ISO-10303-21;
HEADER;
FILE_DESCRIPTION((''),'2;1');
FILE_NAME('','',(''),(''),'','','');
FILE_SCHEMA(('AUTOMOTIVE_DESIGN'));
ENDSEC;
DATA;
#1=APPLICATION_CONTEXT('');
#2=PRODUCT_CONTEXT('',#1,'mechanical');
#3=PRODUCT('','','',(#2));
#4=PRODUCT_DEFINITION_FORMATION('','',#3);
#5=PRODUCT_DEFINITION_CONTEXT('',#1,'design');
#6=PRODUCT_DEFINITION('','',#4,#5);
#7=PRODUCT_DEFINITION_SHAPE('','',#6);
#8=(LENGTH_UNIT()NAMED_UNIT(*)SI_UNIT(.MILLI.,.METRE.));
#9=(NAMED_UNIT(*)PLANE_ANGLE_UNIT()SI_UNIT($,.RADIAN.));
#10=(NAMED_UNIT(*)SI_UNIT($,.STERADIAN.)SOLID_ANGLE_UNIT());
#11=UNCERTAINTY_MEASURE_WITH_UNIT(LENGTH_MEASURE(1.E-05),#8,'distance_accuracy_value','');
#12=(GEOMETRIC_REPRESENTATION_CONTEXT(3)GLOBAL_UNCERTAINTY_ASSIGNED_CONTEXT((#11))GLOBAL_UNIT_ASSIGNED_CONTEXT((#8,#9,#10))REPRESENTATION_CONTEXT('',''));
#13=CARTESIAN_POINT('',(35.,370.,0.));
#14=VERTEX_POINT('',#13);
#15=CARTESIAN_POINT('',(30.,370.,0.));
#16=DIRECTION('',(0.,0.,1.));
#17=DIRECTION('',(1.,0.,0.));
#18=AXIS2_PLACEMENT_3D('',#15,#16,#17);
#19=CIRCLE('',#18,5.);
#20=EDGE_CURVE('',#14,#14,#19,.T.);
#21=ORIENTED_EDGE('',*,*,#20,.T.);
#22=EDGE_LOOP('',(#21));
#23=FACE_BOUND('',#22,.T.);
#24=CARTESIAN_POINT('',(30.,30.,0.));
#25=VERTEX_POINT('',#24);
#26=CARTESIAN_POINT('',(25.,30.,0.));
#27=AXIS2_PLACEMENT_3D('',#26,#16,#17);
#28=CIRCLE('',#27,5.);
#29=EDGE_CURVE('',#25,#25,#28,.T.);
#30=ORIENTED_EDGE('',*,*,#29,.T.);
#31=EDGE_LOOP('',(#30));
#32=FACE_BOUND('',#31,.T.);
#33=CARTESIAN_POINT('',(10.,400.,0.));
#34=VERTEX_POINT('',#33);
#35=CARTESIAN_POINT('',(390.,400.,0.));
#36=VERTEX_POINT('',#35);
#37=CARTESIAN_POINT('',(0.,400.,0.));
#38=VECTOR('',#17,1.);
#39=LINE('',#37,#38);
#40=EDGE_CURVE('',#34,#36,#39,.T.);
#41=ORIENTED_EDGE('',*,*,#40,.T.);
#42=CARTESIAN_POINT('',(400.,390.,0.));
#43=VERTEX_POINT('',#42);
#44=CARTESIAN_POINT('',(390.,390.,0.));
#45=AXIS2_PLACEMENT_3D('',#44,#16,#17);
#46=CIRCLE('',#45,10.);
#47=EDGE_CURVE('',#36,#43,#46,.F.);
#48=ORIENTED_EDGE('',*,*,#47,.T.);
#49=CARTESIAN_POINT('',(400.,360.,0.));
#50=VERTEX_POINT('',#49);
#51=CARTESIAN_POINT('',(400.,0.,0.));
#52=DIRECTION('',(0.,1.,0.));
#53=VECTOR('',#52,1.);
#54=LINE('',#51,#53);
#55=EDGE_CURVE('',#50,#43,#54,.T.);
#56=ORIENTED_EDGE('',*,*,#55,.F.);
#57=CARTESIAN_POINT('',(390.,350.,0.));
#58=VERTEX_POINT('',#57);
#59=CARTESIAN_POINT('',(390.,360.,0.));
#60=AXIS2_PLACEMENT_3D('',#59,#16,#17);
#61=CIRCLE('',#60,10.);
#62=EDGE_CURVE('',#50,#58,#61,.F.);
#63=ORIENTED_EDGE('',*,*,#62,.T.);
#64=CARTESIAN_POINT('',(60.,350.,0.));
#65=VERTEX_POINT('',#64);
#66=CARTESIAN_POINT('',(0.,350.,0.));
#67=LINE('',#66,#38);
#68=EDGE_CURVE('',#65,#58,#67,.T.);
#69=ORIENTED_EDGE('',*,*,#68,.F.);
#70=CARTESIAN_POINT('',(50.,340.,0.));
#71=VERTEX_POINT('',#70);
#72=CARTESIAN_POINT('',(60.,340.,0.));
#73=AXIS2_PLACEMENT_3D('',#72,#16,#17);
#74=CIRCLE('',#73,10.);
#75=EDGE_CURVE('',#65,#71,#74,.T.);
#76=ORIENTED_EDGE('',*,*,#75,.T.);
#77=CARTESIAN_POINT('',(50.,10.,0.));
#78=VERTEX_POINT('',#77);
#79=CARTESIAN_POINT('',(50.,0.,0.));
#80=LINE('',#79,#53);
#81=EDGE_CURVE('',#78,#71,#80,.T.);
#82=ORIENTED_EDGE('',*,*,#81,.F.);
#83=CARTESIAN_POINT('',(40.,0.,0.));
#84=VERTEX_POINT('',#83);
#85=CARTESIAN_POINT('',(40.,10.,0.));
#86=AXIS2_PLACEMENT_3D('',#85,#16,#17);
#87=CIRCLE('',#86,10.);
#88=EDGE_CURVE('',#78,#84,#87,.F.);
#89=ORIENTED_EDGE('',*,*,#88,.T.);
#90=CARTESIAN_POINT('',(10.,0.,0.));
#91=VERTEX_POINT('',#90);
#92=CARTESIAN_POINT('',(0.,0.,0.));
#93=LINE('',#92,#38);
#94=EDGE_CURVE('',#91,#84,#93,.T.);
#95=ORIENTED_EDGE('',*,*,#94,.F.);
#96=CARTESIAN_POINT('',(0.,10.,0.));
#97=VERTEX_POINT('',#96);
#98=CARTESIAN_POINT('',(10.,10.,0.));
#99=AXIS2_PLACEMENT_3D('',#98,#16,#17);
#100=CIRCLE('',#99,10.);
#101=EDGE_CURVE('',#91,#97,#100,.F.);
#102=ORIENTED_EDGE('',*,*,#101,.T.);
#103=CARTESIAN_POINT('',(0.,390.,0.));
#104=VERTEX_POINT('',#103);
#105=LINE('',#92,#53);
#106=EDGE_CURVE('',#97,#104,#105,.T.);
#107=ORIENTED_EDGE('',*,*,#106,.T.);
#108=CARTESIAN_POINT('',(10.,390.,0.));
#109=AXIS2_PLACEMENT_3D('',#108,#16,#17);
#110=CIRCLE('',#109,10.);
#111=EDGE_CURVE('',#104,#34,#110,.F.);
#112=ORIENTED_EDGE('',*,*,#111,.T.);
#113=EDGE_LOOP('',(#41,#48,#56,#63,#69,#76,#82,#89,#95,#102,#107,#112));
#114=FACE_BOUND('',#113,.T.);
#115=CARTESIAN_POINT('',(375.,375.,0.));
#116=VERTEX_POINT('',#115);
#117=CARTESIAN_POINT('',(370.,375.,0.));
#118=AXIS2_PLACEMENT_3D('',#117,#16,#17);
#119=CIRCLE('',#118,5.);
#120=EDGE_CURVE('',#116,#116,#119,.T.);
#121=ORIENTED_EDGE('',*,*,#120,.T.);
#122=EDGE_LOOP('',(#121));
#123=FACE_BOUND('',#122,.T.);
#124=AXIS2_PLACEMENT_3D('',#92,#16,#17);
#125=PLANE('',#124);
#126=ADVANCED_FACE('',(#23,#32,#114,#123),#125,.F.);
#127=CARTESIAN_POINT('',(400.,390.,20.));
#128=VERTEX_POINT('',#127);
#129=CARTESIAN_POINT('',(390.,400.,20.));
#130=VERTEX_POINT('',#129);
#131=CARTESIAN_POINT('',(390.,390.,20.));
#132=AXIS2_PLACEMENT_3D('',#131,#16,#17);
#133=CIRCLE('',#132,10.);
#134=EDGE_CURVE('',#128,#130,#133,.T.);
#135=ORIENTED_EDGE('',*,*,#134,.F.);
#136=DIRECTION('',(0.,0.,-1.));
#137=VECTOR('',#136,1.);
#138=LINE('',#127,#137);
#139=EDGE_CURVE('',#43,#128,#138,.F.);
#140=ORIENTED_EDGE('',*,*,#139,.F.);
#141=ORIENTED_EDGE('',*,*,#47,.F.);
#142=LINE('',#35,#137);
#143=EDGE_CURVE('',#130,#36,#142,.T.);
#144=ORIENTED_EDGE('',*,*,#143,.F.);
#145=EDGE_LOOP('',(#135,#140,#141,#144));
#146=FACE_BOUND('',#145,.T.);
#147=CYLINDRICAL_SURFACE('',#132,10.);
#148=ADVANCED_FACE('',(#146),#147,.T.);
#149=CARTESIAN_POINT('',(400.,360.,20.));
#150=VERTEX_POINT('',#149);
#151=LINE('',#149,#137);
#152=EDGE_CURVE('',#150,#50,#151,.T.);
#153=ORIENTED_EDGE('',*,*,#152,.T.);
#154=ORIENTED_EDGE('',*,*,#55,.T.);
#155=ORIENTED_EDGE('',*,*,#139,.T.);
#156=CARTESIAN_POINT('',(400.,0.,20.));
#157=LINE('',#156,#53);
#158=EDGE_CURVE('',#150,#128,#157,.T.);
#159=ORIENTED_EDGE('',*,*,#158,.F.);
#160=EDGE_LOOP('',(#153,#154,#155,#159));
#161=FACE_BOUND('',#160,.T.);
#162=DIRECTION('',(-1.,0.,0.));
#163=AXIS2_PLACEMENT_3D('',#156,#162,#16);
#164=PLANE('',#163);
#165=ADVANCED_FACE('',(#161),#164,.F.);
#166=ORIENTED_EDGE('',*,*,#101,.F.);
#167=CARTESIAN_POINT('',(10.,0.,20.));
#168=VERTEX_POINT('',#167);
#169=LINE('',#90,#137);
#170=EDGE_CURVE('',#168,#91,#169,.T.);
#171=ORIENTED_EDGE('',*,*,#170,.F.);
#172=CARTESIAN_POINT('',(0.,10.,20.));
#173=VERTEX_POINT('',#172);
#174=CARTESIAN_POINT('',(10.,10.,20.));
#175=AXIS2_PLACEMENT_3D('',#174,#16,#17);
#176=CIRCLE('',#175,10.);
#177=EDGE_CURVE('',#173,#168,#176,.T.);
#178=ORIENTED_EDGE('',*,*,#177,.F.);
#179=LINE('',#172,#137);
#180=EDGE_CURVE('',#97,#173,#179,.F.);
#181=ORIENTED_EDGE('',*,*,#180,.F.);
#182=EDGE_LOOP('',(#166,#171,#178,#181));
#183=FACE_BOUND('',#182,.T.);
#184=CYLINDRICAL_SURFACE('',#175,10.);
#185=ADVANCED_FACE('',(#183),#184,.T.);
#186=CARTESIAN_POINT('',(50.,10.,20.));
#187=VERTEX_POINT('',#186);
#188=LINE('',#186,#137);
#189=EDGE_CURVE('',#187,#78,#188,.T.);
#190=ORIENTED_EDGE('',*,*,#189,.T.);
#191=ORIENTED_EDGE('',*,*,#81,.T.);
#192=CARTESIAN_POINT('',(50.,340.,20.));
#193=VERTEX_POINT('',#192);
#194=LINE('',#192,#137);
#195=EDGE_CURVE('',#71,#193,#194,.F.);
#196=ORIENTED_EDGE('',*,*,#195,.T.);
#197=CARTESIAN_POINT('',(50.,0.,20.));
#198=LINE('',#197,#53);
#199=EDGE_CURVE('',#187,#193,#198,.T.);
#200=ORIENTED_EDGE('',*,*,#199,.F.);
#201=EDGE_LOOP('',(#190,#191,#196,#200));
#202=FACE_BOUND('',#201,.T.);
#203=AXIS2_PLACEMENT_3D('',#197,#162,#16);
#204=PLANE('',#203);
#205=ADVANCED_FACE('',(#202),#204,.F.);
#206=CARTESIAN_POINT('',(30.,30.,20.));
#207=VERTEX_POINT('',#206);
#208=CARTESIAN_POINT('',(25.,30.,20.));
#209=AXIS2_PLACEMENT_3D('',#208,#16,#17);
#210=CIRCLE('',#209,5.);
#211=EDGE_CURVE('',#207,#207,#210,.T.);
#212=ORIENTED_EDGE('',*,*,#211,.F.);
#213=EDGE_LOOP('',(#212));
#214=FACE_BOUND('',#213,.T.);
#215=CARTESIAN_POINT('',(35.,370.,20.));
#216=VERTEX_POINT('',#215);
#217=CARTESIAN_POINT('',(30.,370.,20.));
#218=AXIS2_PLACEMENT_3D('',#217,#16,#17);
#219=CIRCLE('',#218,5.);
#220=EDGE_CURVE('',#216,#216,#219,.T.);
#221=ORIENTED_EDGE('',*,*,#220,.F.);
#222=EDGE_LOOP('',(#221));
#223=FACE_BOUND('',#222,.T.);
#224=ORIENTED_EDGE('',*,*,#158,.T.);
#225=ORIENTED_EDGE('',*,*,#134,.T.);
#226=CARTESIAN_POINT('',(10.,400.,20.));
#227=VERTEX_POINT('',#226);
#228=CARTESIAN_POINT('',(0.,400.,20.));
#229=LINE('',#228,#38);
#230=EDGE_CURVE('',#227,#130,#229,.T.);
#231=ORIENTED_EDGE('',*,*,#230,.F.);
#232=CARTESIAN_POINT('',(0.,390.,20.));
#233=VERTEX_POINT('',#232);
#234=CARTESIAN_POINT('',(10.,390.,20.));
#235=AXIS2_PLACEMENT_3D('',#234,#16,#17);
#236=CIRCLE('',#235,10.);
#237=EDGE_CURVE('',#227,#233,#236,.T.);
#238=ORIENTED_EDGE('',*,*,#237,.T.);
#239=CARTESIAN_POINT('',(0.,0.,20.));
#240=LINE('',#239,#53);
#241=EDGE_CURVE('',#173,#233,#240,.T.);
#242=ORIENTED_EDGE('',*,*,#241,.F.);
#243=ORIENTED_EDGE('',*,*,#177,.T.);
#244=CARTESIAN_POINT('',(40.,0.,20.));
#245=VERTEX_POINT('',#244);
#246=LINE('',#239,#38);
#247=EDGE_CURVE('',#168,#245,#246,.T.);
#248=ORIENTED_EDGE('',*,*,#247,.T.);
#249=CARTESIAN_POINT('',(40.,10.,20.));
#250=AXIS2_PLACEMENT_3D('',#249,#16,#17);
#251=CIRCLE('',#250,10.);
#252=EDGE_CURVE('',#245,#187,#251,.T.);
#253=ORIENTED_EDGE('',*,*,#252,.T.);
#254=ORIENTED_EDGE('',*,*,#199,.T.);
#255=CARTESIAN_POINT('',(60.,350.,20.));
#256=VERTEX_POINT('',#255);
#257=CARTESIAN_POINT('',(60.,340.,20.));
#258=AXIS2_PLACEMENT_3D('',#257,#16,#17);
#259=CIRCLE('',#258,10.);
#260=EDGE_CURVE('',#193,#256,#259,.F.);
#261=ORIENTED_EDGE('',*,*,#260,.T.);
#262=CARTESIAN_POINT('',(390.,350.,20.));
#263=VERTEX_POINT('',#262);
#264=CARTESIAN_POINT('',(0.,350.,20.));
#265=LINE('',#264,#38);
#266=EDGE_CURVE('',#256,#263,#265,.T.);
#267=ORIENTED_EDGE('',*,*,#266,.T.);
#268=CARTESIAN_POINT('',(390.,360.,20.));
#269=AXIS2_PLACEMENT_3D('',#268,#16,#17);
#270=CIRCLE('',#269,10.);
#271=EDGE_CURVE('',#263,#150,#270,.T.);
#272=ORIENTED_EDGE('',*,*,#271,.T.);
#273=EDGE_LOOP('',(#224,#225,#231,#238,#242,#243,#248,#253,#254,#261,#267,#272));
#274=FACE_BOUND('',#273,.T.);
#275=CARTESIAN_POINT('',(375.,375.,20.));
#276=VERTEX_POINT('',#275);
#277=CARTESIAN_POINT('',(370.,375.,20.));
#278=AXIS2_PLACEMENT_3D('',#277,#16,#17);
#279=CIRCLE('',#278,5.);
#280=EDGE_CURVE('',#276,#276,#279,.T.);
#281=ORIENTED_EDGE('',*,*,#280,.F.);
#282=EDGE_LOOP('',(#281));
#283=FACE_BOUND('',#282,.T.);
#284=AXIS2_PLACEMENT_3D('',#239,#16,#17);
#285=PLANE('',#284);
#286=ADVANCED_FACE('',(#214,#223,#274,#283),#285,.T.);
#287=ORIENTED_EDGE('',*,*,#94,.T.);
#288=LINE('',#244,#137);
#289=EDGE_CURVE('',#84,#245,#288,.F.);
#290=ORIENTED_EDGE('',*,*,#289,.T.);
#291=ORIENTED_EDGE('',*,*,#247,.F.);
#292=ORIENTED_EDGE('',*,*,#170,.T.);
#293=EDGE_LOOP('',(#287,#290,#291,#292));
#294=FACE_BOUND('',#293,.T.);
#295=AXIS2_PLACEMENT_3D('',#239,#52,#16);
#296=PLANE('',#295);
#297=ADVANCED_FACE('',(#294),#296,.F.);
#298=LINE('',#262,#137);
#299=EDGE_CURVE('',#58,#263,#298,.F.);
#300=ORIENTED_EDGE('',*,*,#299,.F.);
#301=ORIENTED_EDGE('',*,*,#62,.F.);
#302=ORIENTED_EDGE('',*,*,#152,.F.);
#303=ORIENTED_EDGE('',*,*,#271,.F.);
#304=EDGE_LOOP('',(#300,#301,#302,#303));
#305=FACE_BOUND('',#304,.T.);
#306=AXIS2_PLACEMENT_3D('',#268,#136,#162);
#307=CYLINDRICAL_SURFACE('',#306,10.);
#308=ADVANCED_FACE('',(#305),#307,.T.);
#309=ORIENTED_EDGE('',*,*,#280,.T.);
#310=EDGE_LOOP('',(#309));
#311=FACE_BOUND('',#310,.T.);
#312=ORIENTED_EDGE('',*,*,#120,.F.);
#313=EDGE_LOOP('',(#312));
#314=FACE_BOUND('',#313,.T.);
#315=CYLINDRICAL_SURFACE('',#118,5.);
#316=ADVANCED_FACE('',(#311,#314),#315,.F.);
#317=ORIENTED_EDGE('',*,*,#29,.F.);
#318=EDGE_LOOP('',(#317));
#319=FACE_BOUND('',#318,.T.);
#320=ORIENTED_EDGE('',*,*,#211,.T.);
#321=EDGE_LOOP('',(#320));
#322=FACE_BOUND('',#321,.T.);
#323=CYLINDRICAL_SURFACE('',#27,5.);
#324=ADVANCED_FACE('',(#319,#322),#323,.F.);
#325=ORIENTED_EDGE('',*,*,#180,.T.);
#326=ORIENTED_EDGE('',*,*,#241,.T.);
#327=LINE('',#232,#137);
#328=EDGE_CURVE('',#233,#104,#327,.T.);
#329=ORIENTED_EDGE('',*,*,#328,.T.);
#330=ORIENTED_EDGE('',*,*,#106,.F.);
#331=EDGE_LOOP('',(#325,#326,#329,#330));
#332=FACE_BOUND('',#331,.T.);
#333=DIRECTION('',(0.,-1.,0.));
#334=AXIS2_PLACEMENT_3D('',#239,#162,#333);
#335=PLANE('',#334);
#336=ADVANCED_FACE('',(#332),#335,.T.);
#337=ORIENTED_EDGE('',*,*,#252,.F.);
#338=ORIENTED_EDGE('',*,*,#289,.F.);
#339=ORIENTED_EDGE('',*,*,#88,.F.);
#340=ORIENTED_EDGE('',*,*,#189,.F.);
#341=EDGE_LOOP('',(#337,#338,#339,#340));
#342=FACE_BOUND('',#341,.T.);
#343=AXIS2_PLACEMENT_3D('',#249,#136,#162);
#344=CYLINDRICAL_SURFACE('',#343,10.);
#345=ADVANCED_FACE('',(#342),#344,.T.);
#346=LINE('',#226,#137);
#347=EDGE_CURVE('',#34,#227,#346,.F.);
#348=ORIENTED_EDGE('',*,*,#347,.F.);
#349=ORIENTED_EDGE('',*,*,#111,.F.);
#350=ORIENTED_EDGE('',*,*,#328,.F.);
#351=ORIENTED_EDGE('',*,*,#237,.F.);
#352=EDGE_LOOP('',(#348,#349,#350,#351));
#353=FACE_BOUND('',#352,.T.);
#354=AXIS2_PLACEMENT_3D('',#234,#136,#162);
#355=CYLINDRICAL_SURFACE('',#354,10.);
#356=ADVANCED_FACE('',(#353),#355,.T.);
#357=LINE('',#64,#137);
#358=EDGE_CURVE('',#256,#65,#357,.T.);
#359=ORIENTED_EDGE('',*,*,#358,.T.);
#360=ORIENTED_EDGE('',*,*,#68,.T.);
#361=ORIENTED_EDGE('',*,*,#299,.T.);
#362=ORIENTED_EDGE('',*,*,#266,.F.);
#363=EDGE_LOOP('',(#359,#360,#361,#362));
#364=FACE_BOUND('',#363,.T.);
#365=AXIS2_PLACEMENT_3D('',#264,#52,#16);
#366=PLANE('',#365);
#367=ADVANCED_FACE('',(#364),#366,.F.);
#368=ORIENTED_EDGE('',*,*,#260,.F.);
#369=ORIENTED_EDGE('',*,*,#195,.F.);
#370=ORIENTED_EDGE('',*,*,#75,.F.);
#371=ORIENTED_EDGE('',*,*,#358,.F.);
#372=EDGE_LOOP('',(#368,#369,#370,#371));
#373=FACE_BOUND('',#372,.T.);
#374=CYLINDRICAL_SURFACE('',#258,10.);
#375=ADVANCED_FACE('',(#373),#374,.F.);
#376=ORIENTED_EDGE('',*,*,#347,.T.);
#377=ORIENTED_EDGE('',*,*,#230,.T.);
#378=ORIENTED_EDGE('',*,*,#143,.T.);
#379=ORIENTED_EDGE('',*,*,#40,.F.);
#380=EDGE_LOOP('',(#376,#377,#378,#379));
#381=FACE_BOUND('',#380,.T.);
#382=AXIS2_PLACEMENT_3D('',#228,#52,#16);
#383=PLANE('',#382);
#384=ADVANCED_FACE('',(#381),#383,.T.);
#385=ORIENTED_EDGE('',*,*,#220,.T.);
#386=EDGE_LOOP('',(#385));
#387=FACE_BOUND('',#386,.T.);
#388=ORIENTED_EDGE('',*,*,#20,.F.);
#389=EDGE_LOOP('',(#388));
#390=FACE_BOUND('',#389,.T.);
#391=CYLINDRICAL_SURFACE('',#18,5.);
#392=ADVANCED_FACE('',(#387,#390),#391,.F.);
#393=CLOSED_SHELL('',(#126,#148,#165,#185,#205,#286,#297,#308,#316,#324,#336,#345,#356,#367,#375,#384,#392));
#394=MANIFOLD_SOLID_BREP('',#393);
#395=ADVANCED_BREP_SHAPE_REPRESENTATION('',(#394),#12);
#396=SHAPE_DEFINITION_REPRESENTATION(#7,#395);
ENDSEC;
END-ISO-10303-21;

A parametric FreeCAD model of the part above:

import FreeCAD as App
import Part
import Sketcher
from FreeCAD import Vector


def edges_at(feature, points):
    """Names of the edges that pass closest to the given points."""
    edges = feature.Shape.Edges
    near = lambda p: min(range(len(edges)), key=lambda i: edges[i].distToShape(Part.Vertex(*p))[0])
    return sorted({f"Edge{near(p) + 1}" for p in points})


def add_polygon(sketch, points):
    """Adds a closed chain of lines whose ends are joined by coincident constraints."""
    first, n = sketch.GeometryCount, len(points)
    for a, b in zip(points, points[1:] + points[:1]):
        sketch.addGeometry(Part.LineSegment(App.Vector(*a, 0), App.Vector(*b, 0)), False)
    for i in range(n):
        sketch.addConstraint(Sketcher.Constraint("Coincident", first + i, 2, first + (i + 1) % n, 1))

doc = App.newDocument("Part")
body = doc.addObject("PartDesign::Body", "Body")

# Sketch on XY plane
sketch1 = body.newObject("Sketcher::SketchObject", "Sketch")
sketch1.AttachmentSupport = (doc.getObject("XY_Plane"), [""])
sketch1.MapMode = "FlatFace"
add_polygon(sketch1, [(0, 0), (50, 0), (50, 350), (400, 350), (400, 400), (0, 400)])  # lines 0-5
sketch1.addConstraint(Sketcher.Constraint("Horizontal", 0))
sketch1.addConstraint(Sketcher.Constraint("Vertical", 1))
sketch1.addConstraint(Sketcher.Constraint("Horizontal", 2))
sketch1.addConstraint(Sketcher.Constraint("Vertical", 3))
sketch1.addConstraint(Sketcher.Constraint("Horizontal", 4))
sketch1.addConstraint(Sketcher.Constraint("Vertical", 5))
sketch1.addConstraint(Sketcher.Constraint("Coincident", 5, 2, -1, 1))
sketch1.addConstraint(Sketcher.Constraint("Equal", 2, 1))
sketch1.addConstraint(Sketcher.Constraint("Equal", 0, 3))
sketch1.addConstraint(Sketcher.Constraint("DistanceX", 0, 1, 0, 2, 50.0))
sketch1.addConstraint(Sketcher.Constraint("DistanceX", 2, 1, 2, 2, 350.0))
pad1 = body.newObject("PartDesign::Pad", "Pad")
pad1.Profile = sketch1
pad1.Length = 20
doc.recompute()

fillet = body.newObject("PartDesign::Fillet", "Fillet")
fillet.Base = (pad1, edges_at(pad1, [
    (50, 0, 10),
    (0, 0, 10),
    (0, 400, 10),
    (400, 400, 10),
    (400, 350, 10),
    (50, 350, 10),
]))
fillet.Radius = 10

# Sketch on XY plane
sketch2 = body.newObject("Sketcher::SketchObject", "Sketch001")
sketch2.AttachmentSupport = (doc.getObject("XY_Plane"), [""])
sketch2.MapMode = "FlatFace"
sketch2.AttachmentOffset = App.Placement(Vector(0, 0, 20), App.Rotation())
sketch2.addGeometry(Part.Circle(Vector(25, 30, 0), Vector(0, 0, 1), 5), False)
sketch2.addGeometry(Part.Circle(Vector(30, 370, 0), Vector(0, 0, 1), 5), False)
sketch2.addGeometry(Part.Circle(Vector(370, 375, 0), Vector(0, 0, 1), 5), False)
sketch2.addConstraint(Sketcher.Constraint("Equal", 0, 1))
sketch2.addConstraint(Sketcher.Constraint("Equal", 1, 2))
sketch2.addConstraint(Sketcher.Constraint("Diameter", 0, 10.0))
sketch2.addConstraint(Sketcher.Constraint("DistanceX", -1, 1, 0, 3, 25.0))
sketch2.addConstraint(Sketcher.Constraint("DistanceY", -1, 1, 0, 3, 30.0))
sketch2.addConstraint(Sketcher.Constraint("DistanceX", -1, 1, 1, 3, 30.0))
sketch2.addConstraint(Sketcher.Constraint("DistanceY", -1, 1, 1, 3, 370.0))
sketch2.addConstraint(Sketcher.Constraint("DistanceX", -1, 1, 2, 3, 370.0))
sketch2.addConstraint(Sketcher.Constraint("DistanceY", -1, 1, 2, 3, 375.0))
pocket1 = body.newObject("PartDesign::Pocket", "Pocket")
pocket1.Profile = sketch2
pocket1.Length = 20

doc.recompute()
